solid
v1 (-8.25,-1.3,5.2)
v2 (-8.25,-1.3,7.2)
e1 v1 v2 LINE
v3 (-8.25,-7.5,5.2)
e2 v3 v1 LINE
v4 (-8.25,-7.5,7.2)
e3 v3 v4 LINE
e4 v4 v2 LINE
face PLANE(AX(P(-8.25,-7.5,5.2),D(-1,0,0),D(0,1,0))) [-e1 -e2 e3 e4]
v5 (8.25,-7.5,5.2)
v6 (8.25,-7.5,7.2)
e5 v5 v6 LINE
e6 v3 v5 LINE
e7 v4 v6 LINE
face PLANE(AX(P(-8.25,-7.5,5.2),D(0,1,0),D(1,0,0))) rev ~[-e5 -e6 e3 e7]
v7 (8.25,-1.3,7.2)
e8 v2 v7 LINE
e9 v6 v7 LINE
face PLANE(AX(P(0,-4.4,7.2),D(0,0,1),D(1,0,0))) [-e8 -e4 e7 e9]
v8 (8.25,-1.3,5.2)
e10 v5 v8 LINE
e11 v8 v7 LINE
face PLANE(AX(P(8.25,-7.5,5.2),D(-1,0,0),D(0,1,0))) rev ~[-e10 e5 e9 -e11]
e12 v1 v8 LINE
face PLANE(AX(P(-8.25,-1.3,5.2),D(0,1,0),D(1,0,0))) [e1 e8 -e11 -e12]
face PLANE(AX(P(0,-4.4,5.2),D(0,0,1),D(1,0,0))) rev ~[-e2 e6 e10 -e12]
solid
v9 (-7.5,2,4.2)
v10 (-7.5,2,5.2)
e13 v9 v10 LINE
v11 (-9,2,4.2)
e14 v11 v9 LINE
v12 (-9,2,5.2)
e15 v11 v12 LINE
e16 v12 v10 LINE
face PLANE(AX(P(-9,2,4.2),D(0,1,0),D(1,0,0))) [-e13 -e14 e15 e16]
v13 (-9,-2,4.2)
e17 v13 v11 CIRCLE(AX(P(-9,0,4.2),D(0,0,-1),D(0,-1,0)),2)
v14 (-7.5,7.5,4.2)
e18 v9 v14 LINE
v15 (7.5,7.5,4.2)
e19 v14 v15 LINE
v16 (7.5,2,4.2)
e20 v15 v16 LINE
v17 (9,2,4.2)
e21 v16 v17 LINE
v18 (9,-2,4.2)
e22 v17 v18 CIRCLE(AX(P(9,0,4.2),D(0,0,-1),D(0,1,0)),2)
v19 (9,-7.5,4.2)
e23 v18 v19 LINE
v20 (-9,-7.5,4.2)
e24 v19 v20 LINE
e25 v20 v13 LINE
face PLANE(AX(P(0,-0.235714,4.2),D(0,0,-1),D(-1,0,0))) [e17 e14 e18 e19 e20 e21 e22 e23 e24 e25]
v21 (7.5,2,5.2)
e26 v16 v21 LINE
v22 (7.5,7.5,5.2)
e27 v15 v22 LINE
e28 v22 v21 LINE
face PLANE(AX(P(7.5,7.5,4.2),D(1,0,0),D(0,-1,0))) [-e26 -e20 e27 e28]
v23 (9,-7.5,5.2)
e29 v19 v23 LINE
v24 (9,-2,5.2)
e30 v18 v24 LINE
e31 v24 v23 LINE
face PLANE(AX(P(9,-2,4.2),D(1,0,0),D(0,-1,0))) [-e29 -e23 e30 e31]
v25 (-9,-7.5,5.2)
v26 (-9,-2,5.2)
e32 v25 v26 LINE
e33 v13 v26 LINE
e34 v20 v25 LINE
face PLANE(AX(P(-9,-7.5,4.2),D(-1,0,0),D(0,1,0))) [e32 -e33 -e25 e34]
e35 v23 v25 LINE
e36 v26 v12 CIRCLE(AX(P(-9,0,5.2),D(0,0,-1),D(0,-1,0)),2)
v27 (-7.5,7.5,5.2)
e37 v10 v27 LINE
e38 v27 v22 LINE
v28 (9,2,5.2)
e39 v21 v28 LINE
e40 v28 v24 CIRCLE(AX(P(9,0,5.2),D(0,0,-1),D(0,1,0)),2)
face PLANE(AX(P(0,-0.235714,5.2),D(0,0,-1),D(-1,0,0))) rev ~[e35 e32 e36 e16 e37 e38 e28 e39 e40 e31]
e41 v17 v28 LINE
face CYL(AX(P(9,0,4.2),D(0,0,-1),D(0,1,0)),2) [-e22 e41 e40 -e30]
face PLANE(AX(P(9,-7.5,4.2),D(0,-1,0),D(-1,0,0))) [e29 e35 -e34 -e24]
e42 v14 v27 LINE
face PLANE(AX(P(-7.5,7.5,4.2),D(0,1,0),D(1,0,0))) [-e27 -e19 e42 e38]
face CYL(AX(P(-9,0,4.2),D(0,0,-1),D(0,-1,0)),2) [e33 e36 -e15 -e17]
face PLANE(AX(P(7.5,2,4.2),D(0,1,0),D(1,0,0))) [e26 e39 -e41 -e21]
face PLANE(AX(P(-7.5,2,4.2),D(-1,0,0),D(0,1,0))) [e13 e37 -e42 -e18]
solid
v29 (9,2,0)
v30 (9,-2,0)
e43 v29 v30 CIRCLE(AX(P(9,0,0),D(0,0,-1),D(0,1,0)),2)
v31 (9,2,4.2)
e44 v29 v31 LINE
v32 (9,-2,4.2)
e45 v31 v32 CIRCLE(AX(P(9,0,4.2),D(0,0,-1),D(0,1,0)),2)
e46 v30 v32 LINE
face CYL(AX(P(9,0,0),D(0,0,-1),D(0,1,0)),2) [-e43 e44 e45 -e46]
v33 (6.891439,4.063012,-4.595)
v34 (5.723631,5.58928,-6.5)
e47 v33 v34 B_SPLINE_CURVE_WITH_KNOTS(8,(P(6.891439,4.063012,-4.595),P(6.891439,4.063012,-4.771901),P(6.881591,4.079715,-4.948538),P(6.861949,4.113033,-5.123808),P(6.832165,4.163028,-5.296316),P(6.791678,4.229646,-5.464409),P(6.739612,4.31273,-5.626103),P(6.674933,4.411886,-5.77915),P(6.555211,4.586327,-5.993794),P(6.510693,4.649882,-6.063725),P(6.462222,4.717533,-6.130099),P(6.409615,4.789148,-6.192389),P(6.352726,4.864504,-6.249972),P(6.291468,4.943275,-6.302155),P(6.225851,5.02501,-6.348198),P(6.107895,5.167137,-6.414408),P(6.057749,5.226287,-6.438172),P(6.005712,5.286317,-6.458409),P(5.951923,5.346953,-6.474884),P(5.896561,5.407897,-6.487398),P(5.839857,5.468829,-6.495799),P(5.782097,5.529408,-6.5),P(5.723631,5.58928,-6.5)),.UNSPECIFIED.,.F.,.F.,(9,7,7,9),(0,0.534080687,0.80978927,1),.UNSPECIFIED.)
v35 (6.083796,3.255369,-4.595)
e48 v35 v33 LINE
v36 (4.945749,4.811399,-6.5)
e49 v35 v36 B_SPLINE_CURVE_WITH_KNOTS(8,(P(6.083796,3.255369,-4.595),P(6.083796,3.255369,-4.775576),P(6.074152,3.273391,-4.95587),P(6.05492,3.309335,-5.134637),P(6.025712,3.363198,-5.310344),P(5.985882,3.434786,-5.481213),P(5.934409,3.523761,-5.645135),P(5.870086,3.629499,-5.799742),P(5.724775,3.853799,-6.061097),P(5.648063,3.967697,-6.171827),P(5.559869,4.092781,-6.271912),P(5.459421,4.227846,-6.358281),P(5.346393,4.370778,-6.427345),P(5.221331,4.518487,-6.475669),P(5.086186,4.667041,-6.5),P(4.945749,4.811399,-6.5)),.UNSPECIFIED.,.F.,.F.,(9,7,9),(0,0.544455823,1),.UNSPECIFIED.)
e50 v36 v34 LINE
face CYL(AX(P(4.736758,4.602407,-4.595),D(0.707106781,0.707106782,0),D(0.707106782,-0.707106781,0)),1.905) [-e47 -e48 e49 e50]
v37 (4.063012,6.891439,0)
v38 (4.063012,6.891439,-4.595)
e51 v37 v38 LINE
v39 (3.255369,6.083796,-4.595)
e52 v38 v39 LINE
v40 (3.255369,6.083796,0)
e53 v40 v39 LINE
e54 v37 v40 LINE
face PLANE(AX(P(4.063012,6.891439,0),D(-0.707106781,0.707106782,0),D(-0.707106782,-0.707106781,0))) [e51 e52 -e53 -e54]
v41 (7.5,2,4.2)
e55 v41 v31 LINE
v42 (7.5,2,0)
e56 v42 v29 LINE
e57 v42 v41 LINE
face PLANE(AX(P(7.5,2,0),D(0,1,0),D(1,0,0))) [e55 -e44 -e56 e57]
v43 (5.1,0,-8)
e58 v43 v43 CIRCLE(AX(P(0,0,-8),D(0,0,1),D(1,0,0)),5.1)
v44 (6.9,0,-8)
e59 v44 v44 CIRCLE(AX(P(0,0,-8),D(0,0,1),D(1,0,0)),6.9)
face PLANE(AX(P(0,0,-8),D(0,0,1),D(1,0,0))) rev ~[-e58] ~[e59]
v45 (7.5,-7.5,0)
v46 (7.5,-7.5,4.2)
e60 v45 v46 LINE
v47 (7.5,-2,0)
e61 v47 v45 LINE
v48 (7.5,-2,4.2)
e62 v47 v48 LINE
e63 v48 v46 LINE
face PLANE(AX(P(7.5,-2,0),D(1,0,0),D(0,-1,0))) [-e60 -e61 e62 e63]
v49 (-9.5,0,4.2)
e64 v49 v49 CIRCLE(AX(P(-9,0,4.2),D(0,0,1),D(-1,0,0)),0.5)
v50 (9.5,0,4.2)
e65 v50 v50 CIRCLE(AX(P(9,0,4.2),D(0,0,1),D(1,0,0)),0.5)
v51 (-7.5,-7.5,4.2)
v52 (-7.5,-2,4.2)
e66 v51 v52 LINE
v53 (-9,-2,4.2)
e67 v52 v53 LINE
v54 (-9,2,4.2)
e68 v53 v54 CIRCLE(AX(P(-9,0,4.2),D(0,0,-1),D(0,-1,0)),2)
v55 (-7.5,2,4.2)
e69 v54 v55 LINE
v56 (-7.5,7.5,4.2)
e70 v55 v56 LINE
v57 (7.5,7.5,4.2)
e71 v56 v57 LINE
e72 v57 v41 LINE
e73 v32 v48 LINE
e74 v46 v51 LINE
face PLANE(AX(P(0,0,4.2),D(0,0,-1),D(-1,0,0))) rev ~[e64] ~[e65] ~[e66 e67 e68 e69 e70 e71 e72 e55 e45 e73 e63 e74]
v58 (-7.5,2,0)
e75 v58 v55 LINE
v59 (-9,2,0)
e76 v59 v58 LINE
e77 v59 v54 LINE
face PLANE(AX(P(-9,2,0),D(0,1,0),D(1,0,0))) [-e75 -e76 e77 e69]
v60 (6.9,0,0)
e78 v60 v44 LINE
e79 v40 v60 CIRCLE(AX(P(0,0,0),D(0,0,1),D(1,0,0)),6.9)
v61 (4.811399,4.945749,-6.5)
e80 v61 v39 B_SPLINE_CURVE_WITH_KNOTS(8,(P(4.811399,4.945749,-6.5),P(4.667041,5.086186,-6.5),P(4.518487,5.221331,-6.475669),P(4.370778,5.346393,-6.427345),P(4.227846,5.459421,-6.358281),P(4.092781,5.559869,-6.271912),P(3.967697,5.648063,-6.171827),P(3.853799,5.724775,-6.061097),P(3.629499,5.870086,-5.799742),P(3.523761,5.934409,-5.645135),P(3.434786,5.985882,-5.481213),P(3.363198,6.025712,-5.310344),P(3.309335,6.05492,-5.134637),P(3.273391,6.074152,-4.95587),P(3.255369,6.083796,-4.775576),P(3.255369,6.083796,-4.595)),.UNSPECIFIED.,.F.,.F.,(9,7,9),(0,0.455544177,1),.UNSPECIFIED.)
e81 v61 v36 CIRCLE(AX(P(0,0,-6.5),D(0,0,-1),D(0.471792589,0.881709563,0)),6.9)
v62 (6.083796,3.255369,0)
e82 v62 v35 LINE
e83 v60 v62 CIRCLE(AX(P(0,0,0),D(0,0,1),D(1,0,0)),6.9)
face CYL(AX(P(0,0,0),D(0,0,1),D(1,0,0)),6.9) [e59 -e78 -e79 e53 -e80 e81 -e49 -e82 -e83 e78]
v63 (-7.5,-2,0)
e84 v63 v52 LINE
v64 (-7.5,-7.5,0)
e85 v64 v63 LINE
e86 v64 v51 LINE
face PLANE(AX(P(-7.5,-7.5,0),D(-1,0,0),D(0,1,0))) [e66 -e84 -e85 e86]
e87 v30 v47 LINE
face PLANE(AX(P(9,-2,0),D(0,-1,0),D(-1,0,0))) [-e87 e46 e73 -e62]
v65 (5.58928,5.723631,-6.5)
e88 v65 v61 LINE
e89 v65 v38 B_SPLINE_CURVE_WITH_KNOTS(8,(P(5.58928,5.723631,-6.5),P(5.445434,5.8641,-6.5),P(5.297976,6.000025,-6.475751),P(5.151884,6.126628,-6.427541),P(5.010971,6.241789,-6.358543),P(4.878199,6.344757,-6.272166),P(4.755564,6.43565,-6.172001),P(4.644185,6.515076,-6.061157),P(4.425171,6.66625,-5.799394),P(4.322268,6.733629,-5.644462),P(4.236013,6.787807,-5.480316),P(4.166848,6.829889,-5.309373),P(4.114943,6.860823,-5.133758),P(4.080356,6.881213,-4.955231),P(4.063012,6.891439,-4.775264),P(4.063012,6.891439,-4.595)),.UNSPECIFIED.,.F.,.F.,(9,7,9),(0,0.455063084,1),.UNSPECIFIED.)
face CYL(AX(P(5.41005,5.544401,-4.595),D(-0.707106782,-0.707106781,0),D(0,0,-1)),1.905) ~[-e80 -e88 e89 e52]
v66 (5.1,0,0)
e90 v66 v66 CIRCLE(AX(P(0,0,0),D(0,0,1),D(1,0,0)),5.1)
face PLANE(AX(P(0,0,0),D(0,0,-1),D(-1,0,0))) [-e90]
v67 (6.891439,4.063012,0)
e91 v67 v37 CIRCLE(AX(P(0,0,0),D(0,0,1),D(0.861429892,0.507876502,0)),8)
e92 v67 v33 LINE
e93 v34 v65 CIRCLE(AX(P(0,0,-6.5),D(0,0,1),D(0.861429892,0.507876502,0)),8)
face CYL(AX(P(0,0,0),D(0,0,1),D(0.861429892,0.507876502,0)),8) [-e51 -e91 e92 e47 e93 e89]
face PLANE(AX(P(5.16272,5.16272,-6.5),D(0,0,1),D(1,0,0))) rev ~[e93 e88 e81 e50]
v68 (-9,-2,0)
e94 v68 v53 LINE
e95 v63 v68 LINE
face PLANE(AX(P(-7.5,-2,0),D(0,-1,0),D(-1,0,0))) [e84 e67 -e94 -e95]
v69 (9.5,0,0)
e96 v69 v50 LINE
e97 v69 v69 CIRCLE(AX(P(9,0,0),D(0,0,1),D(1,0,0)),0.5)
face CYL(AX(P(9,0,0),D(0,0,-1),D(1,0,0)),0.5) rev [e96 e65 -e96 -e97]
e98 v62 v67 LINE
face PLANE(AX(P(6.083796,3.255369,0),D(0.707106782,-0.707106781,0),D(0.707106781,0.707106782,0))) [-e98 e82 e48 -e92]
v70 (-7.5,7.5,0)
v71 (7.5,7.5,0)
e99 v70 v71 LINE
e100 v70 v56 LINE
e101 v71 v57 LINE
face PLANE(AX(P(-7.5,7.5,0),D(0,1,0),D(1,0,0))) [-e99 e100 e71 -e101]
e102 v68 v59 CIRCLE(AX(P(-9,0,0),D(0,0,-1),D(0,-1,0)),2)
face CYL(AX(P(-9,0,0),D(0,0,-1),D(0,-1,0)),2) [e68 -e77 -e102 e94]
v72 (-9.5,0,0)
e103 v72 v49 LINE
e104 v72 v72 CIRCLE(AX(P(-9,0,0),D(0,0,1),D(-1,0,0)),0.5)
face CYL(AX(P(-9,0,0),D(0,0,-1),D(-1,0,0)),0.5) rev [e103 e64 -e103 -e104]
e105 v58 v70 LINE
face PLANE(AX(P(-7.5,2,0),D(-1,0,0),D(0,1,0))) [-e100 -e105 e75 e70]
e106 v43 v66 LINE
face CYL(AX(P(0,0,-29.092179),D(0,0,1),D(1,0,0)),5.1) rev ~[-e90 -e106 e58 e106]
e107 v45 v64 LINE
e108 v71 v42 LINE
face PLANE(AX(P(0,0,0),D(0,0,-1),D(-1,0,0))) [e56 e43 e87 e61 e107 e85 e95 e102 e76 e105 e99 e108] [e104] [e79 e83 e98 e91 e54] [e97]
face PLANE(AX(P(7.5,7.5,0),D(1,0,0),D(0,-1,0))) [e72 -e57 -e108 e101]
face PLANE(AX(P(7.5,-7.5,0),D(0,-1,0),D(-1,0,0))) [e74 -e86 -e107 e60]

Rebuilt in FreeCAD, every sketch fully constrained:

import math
import FreeCAD as App
import Part
import Sketcher

V = App.Vector
Q = App.Units.Quantity


def edges_at(feature, points):
    """Names of the edges that pass closest to the given points."""
    edges = feature.Shape.Edges
    near = lambda p: min(range(len(edges)), key=lambda i: edges[i].distToShape(Part.Vertex(*p))[0])
    return sorted({f"Edge{near(p) + 1}" for p in points})

doc = App.newDocument("Part")
body = doc.addObject("PartDesign::Body", "Body")

# Sketch on XY plane
sketch1 = body.newObject("Sketcher::SketchObject", "Sketch")
sketch1.AttachmentSupport = (doc.getObject("XY_Plane"), [""])
sketch1.MapMode = "FlatFace"
sketch1.addGeometry(Part.Circle(V(0, 0, 0), V(0, 0, 1), 6.9), False)
sketch1.addConstraint([
    Sketcher.Constraint("Coincident", 0, 3, -1, 1),
    Sketcher.Constraint("Diameter", 0, 13.8),
])
pad1 = body.newObject("PartDesign::Pad", "Pad")
pad1.Profile = sketch1
pad1.Length = 8
pad1.Reversed = True

# Sketch on XY plane
sketch2 = body.newObject("Sketcher::SketchObject", "Sketch001")
sketch2.AttachmentSupport = (doc.getObject("XY_Plane"), [""])
sketch2.MapMode = "FlatFace"
sketch2.addGeometry([
    Part.LineSegment(V(4.063012, 6.891439, 0), V(3.255369, 6.083796, 0)),
    Part.ArcOfCircle(Part.Circle(V(0, 0, 0), V(0, 0, 1), 6.9), math.radians(28.15072), math.radians(61.84928)),
    Part.LineSegment(V(6.083796, 3.255369, 0), V(6.891439, 4.063012, 0)),
    Part.ArcOfCircle(Part.Circle(V(0, 0, 0), V(0, 0, 1), 8), math.radians(30.522488), math.radians(59.477512)),
], False)
sketch2.addConstraint([
    Sketcher.Constraint("Coincident", 0, 2, 1, 2),
    Sketcher.Constraint("Coincident", 1, 1, 2, 1),
    Sketcher.Constraint("Coincident", 2, 2, 3, 1),
    Sketcher.Constraint("Coincident", 3, 2, 0, 1),
    Sketcher.Constraint("Coincident", 1, 3, -1, 1),
    Sketcher.Constraint("Coincident", 3, 3, -1, 1),
    Sketcher.Constraint("Parallel", 0, 2),
    Sketcher.Constraint("Equal", 0, 2),
    Sketcher.Constraint("Radius", 3, 8.0),
    Sketcher.Constraint("Radius", 1, 6.9),
    Sketcher.Constraint("Angle", 0, Q("-135 deg")),
    Sketcher.Constraint("Distance", 0, 1.14218),
])
pad2 = body.newObject("PartDesign::Pad", "Pad001")
pad2.Profile = sketch2
pad2.Length = 6.5
pad2.Reversed = True
doc.recompute()

fillet = body.newObject("PartDesign::Fillet", "Fillet")
fillet.Base = (pad2, edges_at(pad2, [(6.488, 3.659, -6.5), (3.659, 6.488, -6.5)]))
fillet.Radius = 1.905

# Sketch on XY plane
sketch3 = body.newObject("Sketcher::SketchObject", "Sketch002")
sketch3.AttachmentSupport = (doc.getObject("XY_Plane"), [""])
sketch3.MapMode = "FlatFace"
sketch3.AttachmentOffset = App.Placement(V(0, 0, -8), App.Rotation())
sketch3.addGeometry(Part.Circle(V(0, 0, 0), V(0, 0, 1), 5.1), False)
sketch3.addConstraint([
    Sketcher.Constraint("Coincident", 0, 3, -1, 1),
    Sketcher.Constraint("Diameter", 0, 10.2),
])
doc.recompute()
hole = body.newObject("PartDesign::Hole", "Hole")
hole.Profile = sketch3
hole.ThreadType = "None"
hole.Diameter = 10.2
hole.DepthType = "ThroughAll"
hole.Reversed = True

# Sketch on XY plane
sketch4 = body.newObject("Sketcher::SketchObject", "Sketch003")
sketch4.AttachmentSupport = (doc.getObject("XY_Plane"), [""])
sketch4.MapMode = "FlatFace"
sketch4.addGeometry([
    Part.LineSegment(V(7.5, 7.5, 0), V(-7.5, 7.5, 0)),  # 0
    Part.LineSegment(V(-7.5, 7.5, 0), V(-7.5, 2, 0)),  # 1
    Part.LineSegment(V(-7.5, 2, 0), V(-9, 2, 0)),  # 2
    Part.ArcOfCircle(Part.Circle(V(-9, 0, 0), V(0, 0, 1), 2), math.radians(90), math.radians(270)),  # 3
    Part.LineSegment(V(-9, -2, 0), V(-7.5, -2, 0)),  # 4
    Part.LineSegment(V(-7.5, -2, 0), V(-7.5, -7.5, 0)),  # 5
    Part.LineSegment(V(-7.5, -7.5, 0), V(7.5, -7.5, 0)),  # 6
    Part.LineSegment(V(7.5, -7.5, 0), V(7.5, -2, 0)),  # 7
    Part.LineSegment(V(7.5, -2, 0), V(9, -2, 0)),  # 8
    Part.ArcOfCircle(Part.Circle(V(9, 0, 0), V(0, 0, 1), 2), math.radians(-90), math.radians(90)),  # 9
    Part.LineSegment(V(9, 2, 0), V(7.5, 2, 0)),  # 10
    Part.LineSegment(V(7.5, 2, 0), V(7.5, 7.5, 0)),  # 11
    Part.Circle(V(9, 0, 0), V(0, 0, 1), 0.5),  # 12
    Part.Circle(V(-9, 0, 0), V(0, 0, 1), 0.5),  # 13
], False)
sketch4.addConstraint([
    Sketcher.Constraint("Coincident", 0, 2, 1, 1),
    Sketcher.Constraint("Coincident", 1, 2, 2, 1),
    Sketcher.Constraint("Tangent", 2, 2, 3, 1),
    Sketcher.Constraint("Tangent", 3, 2, 4, 1),
    Sketcher.Constraint("Coincident", 4, 2, 5, 1),
    Sketcher.Constraint("Coincident", 5, 2, 6, 1),
    Sketcher.Constraint("Coincident", 6, 2, 7, 1),
    Sketcher.Constraint("Coincident", 7, 2, 8, 1),
    Sketcher.Constraint("Tangent", 8, 2, 9, 1),
    Sketcher.Constraint("Tangent", 9, 2, 10, 1),
    Sketcher.Constraint("Coincident", 10, 2, 11, 1),
    Sketcher.Constraint("Coincident", 11, 2, 0, 1),
    Sketcher.Constraint("Horizontal", 0),
    Sketcher.Constraint("Vertical", 1),
    Sketcher.Constraint("Horizontal", 2),
    Sketcher.Constraint("Horizontal", 4),
    Sketcher.Constraint("Vertical", 5),
    Sketcher.Constraint("Horizontal", 6),
    Sketcher.Constraint("Vertical", 7),
    Sketcher.Constraint("Horizontal", 8),
    Sketcher.Constraint("Horizontal", 10),
    Sketcher.Constraint("Vertical", 11),
    Sketcher.Constraint("Coincident", 12, 3, 9, 3),
    Sketcher.Constraint("Coincident", 13, 3, 3, 3),
    Sketcher.Constraint("Equal", 3, 9),
    Sketcher.Constraint("Equal", 12, 13),
    Sketcher.Constraint("Symmetric", 3, 3, 9, 3, -1, 1),
    Sketcher.Constraint("Symmetric", 0, 2, 6, 2, -1, 1),
    Sketcher.Constraint("Symmetric", 4, 2, 7, 2, -2),
    Sketcher.Constraint("Vertical", 7, 2, 10, 2),
    Sketcher.Constraint("Diameter", 12, 1.0),
    Sketcher.Constraint("Radius", 3, 2.0),
    Sketcher.Constraint("DistanceX", 0, 2, 0, 1, 15.0),
    Sketcher.Constraint("DistanceX", 2, 2, 2, 1, 1.5),
    Sketcher.Constraint("DistanceY", 1, 2, 1, 1, 5.5),
])
pad3 = body.newObject("PartDesign::Pad", "Pad002")
pad3.Profile = sketch4
pad3.Length = 4.2
body2 = doc.addObject("PartDesign::Body", "Body001")

# Sketch on XY plane
sketch5 = body2.newObject("Sketcher::SketchObject", "Sketch004")
sketch5.AttachmentSupport = (doc.getObject("XY_Plane001"), [""])
sketch5.MapMode = "FlatFace"
sketch5.AttachmentOffset = App.Placement(V(0, 0, 4.2), App.Rotation())
sketch5.addGeometry([
    Part.LineSegment(V(9, -7.5, 0), V(9, -2, 0)),  # 0
    Part.ArcOfCircle(Part.Circle(V(9, 0, 0), V(0, 0, 1), 2), math.radians(-90), math.radians(90)),  # 1
    Part.LineSegment(V(9, 2, 0), V(7.5, 2, 0)),  # 2
    Part.LineSegment(V(7.5, 2, 0), V(7.5, 7.5, 0)),  # 3
    Part.LineSegment(V(7.5, 7.5, 0), V(-7.5, 7.5, 0)),  # 4
    Part.LineSegment(V(-7.5, 7.5, 0), V(-7.5, 2, 0)),  # 5
    Part.LineSegment(V(-7.5, 2, 0), V(-9, 2, 0)),  # 6
    Part.ArcOfCircle(Part.Circle(V(-9, 0, 0), V(0, 0, 1), 2), math.radians(90), math.radians(270)),  # 7
    Part.LineSegment(V(-9, -2, 0), V(-9, -7.5, 0)),  # 8
    Part.LineSegment(V(-9, -7.5, 0), V(9, -7.5, 0)),  # 9
], False)
sketch5.addConstraint([
    Sketcher.Constraint("Coincident", 0, 2, 1, 1),
    Sketcher.Constraint("Tangent", 1, 2, 2, 1),
    Sketcher.Constraint("Coincident", 2, 2, 3, 1),
    Sketcher.Constraint("Coincident", 3, 2, 4, 1),
    Sketcher.Constraint("Coincident", 4, 2, 5, 1),
    Sketcher.Constraint("Coincident", 5, 2, 6, 1),
    Sketcher.Constraint("Tangent", 6, 2, 7, 1),
    Sketcher.Constraint("Coincident", 7, 2, 8, 1),
    Sketcher.Constraint("Coincident", 8, 2, 9, 1),
    Sketcher.Constraint("Coincident", 9, 2, 0, 1),
    Sketcher.Constraint("Vertical", 0),
    Sketcher.Constraint("Horizontal", 2),
    Sketcher.Constraint("Vertical", 3),
    Sketcher.Constraint("Horizontal", 4),
    Sketcher.Constraint("Vertical", 5),
    Sketcher.Constraint("Horizontal", 6),
    Sketcher.Constraint("Vertical", 8),
    Sketcher.Constraint("Horizontal", 9),
    Sketcher.Constraint("Equal", 1, 7),
    Sketcher.Constraint("Symmetric", 1, 3, 7, 3, -1, 1),
    Sketcher.Constraint("Symmetric", 2, 2, 5, 2, -2),
    Sketcher.Constraint("Vertical", 1, 3, 0, 2),
    Sketcher.Constraint("Vertical", 6, 2, 7, 2),
    Sketcher.Constraint("Equal", 0, 3),
    Sketcher.Constraint("Radius", 1, 2.0),
    Sketcher.Constraint("DistanceX", 4, 2, 4, 1, 15.0),
    Sketcher.Constraint("DistanceX", 9, 1, 9, 2, 18.0),
    Sketcher.Constraint("DistanceY", 0, 1, 0, 2, 5.5),
])
pad4 = body2.newObject("PartDesign::Pad", "Pad003")
pad4.Profile = sketch5
pad4.Length = 1
body3 = doc.addObject("PartDesign::Body", "Body002")

# Sketch on XY plane
sketch6 = body3.newObject("Sketcher::SketchObject", "Sketch005")
sketch6.AttachmentSupport = (doc.getObject("XY_Plane002"), [""])
sketch6.MapMode = "FlatFace"
sketch6.AttachmentOffset = App.Placement(V(0, 0, 5.2), App.Rotation())
sketch6.addGeometry([
    Part.LineSegment(V(-8.25, -1.3, 0), V(-8.25, -7.5, 0)),
    Part.LineSegment(V(-8.25, -7.5, 0), V(8.25, -7.5, 0)),
    Part.LineSegment(V(8.25, -7.5, 0), V(8.25, -1.3, 0)),
    Part.LineSegment(V(8.25, -1.3, 0), V(-8.25, -1.3, 0)),
], False)
sketch6.addConstraint([
    Sketcher.Constraint("Coincident", 0, 2, 1, 1),
    Sketcher.Constraint("Coincident", 1, 2, 2, 1),
    Sketcher.Constraint("Coincident", 2, 2, 3, 1),
    Sketcher.Constraint("Coincident", 3, 2, 0, 1),
    Sketcher.Constraint("Vertical", 0),
    Sketcher.Constraint("Horizontal", 1),
    Sketcher.Constraint("Vertical", 2),
    Sketcher.Constraint("Horizontal", 3),
    Sketcher.Constraint("DistanceX", 1, 1, 1, 2, 16.5),
    Sketcher.Constraint("DistanceY", 0, 2, 0, 1, 6.2),
    Sketcher.Constraint("DistanceY", 0, 2, -1, 1, 7.5),
    Sketcher.Constraint("DistanceX", 0, 2, -1, 1, 8.25),
])
pad5 = body3.newObject("PartDesign::Pad", "Pad004")
pad5.Profile = sketch6
pad5.Length = 2

doc.recompute()
